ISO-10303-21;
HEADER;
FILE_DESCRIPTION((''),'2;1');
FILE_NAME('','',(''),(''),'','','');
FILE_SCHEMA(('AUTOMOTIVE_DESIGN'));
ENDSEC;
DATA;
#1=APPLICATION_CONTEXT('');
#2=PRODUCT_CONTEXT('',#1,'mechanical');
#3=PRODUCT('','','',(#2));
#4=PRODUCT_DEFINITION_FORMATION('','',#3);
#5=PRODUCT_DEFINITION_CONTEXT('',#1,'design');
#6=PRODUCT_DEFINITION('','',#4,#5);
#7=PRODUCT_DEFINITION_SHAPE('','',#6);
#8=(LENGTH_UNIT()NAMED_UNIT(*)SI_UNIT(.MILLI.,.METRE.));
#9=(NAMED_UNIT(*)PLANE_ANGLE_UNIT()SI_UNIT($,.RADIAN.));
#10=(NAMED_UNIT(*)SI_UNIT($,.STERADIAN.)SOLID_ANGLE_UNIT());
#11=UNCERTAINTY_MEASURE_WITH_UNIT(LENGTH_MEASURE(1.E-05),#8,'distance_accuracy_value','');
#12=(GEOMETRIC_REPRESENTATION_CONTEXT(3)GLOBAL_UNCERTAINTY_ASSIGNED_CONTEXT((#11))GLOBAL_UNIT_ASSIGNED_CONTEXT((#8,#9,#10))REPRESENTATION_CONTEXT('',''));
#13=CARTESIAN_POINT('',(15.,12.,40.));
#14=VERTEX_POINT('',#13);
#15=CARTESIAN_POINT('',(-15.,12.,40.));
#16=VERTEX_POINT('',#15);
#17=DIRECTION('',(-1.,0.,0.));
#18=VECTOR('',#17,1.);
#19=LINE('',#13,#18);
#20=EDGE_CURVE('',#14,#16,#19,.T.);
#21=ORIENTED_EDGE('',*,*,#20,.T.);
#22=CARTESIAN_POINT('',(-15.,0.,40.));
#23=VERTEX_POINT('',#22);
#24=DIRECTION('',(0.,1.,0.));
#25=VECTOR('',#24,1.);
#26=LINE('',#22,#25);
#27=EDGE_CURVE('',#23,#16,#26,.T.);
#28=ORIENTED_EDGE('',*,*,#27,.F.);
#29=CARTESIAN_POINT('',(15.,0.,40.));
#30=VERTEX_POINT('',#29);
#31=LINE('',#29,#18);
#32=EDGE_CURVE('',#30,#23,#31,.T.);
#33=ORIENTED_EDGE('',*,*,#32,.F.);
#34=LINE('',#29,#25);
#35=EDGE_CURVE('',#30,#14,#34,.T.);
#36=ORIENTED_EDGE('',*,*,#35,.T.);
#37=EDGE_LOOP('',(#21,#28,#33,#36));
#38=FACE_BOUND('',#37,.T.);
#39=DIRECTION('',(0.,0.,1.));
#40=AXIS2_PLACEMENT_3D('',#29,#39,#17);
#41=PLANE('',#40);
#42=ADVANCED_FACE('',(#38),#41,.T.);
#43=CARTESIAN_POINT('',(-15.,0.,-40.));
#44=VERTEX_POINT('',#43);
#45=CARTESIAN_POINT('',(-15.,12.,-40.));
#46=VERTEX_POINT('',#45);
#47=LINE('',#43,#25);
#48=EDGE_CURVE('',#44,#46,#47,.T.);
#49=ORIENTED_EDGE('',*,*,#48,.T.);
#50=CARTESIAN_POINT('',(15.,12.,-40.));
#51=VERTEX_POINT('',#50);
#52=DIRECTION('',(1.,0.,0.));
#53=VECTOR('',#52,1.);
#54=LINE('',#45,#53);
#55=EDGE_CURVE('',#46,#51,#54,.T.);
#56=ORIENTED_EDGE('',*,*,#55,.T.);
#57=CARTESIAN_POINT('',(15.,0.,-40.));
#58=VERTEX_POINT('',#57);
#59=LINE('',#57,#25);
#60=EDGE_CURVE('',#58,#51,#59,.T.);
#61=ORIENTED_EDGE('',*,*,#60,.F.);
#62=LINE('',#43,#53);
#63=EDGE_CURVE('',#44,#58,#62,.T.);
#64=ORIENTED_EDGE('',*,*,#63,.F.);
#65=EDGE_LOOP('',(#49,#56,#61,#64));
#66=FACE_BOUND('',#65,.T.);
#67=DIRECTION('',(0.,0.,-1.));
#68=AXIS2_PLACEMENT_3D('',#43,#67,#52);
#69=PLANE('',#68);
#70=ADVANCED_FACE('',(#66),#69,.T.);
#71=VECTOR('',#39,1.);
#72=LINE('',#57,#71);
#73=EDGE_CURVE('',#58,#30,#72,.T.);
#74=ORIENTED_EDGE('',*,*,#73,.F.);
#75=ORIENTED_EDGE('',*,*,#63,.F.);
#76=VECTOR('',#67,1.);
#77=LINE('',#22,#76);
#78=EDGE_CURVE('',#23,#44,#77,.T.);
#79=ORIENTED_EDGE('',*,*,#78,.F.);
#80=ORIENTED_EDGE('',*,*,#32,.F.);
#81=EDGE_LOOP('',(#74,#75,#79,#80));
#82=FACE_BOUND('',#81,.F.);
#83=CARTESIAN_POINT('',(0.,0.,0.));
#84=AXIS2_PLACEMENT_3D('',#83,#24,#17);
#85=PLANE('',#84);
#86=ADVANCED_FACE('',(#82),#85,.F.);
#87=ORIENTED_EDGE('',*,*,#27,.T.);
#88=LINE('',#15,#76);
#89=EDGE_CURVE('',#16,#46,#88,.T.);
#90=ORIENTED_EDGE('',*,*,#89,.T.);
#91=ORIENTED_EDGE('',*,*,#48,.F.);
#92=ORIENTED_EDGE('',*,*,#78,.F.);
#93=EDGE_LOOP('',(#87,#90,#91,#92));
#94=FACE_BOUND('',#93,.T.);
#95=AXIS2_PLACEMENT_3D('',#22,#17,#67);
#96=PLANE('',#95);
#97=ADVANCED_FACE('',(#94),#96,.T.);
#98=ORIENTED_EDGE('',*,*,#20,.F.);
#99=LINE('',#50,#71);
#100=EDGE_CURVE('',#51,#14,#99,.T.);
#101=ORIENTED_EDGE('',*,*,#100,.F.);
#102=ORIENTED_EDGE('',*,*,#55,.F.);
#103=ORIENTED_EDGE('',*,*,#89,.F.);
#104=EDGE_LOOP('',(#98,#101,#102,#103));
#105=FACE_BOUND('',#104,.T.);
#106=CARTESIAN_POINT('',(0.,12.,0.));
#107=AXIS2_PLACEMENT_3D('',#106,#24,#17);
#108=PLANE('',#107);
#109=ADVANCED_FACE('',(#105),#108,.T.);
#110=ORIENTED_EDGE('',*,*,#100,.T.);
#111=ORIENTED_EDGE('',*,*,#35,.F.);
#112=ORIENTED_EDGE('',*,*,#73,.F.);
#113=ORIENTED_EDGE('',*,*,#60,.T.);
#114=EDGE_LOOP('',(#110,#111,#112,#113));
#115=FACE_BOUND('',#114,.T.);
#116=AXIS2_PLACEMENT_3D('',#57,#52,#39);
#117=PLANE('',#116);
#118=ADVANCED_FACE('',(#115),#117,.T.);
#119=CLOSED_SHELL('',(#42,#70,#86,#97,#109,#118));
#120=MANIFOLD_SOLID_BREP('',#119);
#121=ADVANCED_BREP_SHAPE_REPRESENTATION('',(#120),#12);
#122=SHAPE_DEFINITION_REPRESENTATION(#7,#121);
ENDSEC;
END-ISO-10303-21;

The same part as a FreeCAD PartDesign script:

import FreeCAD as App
import Part
import Sketcher
Q = App.Units.Quantity


def add_polygon(sketch, points):
    """Adds a closed chain of lines whose ends are joined by coincident constraints."""
    first, n = sketch.GeometryCount, len(points)
    for a, b in zip(points, points[1:] + points[:1]):
        sketch.addGeometry(Part.LineSegment(App.Vector(*a, 0), App.Vector(*b, 0)), False)
    for i in range(n):
        sketch.addConstraint(Sketcher.Constraint("Coincident", first + i, 2, first + (i + 1) % n, 1))

doc = App.newDocument("Part")
body = doc.addObject("PartDesign::Body", "Body")

sketch1 = body.newObject("Sketcher::SketchObject", "Sketch")
sketch1.AttachmentSupport = (doc.getObject("XZ_Plane"), [""])
sketch1.MapMode = "FlatFace"
add_polygon(sketch1, [(-15, 40), (15, 40), (15, -40), (-15, -40)])
sketch1.addConstraint(Sketcher.Constraint("Horizontal", 0))
sketch1.addConstraint(Sketcher.Constraint("Vertical", 1))
sketch1.addConstraint(Sketcher.Constraint("Horizontal", 2))
sketch1.addConstraint(Sketcher.Constraint("Vertical", 3))
sketch1.addConstraint(Sketcher.Constraint("Symmetric", 0, 2, 2, 2, -1, 1))
sketch1.addConstraint(Sketcher.Constraint("DistanceX", 0, 1, 0, 2, Q("30 mm")))
sketch1.addConstraint(Sketcher.Constraint("DistanceY", 1, 2, 1, 1, Q("80 mm")))
pad1 = body.newObject("PartDesign::Pad", "Pad")
pad1.Profile = sketch1
pad1.Length = 12
pad1.Reversed = True

doc.recompute()
